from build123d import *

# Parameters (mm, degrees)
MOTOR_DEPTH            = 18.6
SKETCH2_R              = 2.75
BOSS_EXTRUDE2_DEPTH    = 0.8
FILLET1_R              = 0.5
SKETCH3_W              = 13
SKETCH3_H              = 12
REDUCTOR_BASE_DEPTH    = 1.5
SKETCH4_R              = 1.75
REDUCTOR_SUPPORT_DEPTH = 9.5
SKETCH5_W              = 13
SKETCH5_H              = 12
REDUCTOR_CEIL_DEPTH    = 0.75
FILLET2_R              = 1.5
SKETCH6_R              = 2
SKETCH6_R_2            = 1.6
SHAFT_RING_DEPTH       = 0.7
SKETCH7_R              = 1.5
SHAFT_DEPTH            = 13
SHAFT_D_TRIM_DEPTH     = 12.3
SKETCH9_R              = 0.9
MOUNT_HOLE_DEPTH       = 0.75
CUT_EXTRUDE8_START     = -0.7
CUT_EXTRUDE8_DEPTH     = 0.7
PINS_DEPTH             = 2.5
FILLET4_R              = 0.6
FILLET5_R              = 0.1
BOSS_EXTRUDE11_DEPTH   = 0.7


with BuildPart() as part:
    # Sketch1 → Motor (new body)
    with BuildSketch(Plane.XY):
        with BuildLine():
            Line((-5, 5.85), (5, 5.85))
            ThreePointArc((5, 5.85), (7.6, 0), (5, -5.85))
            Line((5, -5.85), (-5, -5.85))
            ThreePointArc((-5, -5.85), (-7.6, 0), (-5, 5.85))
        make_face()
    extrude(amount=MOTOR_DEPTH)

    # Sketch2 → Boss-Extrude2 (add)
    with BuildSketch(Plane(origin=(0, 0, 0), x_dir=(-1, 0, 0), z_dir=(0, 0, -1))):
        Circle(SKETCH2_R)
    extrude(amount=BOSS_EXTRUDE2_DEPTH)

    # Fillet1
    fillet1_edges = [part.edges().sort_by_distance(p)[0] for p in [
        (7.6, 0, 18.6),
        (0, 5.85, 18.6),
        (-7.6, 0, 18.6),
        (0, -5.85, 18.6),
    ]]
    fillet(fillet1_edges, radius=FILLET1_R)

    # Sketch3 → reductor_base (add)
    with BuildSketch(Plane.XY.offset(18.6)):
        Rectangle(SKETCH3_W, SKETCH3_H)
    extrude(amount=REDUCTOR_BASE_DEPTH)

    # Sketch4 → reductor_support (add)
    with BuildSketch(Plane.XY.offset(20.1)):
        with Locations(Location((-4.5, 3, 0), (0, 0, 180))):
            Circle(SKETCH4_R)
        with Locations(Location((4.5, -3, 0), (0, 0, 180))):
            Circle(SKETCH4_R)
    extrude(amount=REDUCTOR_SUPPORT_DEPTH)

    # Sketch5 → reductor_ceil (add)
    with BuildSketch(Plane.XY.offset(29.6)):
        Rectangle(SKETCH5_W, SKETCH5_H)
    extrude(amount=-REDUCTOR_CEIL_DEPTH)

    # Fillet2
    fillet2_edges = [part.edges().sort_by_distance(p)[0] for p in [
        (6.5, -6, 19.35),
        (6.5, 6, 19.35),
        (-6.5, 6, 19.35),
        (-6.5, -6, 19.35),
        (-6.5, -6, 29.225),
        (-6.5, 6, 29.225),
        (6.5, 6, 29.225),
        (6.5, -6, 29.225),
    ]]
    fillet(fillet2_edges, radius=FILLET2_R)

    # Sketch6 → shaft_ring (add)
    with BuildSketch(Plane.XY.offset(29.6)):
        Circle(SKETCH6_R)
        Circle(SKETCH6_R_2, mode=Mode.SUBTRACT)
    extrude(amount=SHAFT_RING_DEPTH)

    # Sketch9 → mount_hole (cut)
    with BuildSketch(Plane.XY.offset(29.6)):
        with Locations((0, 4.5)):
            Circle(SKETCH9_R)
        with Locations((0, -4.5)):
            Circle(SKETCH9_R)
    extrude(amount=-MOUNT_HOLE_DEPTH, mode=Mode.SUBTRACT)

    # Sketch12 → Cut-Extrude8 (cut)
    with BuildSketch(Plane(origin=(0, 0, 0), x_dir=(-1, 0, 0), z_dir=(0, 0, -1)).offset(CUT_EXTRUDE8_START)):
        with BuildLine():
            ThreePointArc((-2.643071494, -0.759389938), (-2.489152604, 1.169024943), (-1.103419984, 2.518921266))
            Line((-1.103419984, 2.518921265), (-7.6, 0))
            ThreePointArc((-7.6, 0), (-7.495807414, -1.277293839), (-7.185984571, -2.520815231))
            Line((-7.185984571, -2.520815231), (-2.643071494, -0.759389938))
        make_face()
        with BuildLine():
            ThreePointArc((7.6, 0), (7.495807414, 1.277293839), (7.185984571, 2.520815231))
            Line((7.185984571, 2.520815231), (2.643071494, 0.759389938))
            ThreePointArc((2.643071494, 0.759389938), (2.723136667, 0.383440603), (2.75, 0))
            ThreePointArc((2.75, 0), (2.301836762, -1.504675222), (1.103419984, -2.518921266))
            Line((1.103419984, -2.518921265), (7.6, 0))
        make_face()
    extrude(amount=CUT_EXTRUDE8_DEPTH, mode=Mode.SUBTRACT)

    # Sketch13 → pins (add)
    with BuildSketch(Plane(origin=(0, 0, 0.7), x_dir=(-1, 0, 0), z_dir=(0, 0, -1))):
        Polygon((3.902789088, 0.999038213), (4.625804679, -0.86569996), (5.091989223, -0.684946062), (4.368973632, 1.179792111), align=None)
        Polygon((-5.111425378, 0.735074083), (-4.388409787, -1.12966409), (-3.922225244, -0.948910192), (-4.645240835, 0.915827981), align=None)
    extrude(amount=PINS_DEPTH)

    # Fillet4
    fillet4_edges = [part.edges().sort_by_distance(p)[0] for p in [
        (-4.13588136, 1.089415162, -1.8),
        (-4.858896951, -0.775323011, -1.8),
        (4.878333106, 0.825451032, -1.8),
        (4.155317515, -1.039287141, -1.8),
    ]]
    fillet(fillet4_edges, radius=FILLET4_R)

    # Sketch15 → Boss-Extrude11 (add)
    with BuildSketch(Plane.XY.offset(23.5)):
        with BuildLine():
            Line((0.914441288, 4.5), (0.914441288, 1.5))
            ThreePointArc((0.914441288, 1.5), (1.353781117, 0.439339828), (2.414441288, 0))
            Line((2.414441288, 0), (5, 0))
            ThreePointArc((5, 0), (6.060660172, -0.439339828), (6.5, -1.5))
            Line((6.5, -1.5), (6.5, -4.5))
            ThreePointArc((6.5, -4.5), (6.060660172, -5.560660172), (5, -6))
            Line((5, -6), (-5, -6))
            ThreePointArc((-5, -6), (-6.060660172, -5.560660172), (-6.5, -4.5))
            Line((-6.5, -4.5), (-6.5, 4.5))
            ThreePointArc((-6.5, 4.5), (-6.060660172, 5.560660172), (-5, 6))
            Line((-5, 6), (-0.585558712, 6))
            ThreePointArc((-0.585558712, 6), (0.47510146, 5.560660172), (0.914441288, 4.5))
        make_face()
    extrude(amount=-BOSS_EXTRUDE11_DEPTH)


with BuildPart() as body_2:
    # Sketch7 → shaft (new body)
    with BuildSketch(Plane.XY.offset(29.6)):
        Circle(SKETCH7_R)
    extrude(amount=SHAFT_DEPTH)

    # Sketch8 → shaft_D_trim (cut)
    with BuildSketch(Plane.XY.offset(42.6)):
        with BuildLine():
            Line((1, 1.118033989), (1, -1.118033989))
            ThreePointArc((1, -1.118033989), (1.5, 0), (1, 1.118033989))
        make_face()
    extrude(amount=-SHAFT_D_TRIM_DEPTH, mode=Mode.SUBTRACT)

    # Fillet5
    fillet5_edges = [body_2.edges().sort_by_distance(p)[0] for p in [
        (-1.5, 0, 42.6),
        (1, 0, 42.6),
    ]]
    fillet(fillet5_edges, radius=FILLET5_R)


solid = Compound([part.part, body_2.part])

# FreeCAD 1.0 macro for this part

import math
import FreeCAD as App
import Part
import Sketcher
from FreeCAD import Vector
Q = App.Units.Quantity


def edges_at(feature, points):
    """Names of the edges that pass closest to the given points."""
    edges = feature.Shape.Edges
    near = lambda p: min(range(len(edges)), key=lambda i: edges[i].distToShape(Part.Vertex(*p))[0])
    return sorted({f"Edge{near(p) + 1}" for p in points})


def add_polygon(sketch, points):
    """Adds a closed chain of lines whose ends are joined by coincident constraints."""
    first, n = sketch.GeometryCount, len(points)
    for a, b in zip(points, points[1:] + points[:1]):
        sketch.addGeometry(Part.LineSegment(App.Vector(*a, 0), App.Vector(*b, 0)), False)
    for i in range(n):
        sketch.addConstraint(Sketcher.Constraint("Coincident", first + i, 2, first + (i + 1) % n, 1))

doc = App.newDocument("Part")
body = doc.addObject("PartDesign::Body", "Body")

# Sketch on XY plane
sketch1 = doc.addObject("Sketcher::SketchObject", "Sketch")
body.addObject(sketch1)
sketch1.AttachmentSupport = (doc.XY_Plane, [""])
sketch1.MapMode = "FlatFace"
sketch1.addGeometry(Part.LineSegment(Vector(5, 6, 0), Vector(-5, 6, 0)), False)
sketch1.addGeometry(Part.ArcOfCircle(Part.Circle(Vector(0, 0, 0), Vector(0, 0, 1), 8), math.radians(132), math.radians(228)), False)
sketch1.addGeometry(Part.LineSegment(Vector(-5, -6, 0), Vector(5, -6, 0)), False)
sketch1.addGeometry(Part.ArcOfCircle(Part.Circle(Vector(0, 0, 0), Vector(0, 0, 1), 8), math.radians(-48), math.radians(48)), False)
sketch1.addConstraint(Sketcher.Constraint("Coincident", 0, 2, 1, 1))
sketch1.addConstraint(Sketcher.Constraint("Coincident", 1, 2, 2, 1))
sketch1.addConstraint(Sketcher.Constraint("Coincident", 2, 2, 3, 1))
sketch1.addConstraint(Sketcher.Constraint("Coincident", 3, 2, 0, 1))
sketch1.addConstraint(Sketcher.Constraint("Horizontal", 0))
sketch1.addConstraint(Sketcher.Constraint("Horizontal", 2))
sketch1.addConstraint(Sketcher.Constraint("Equal", 1, 3))
sketch1.addConstraint(Sketcher.Constraint("Symmetric", 1, 3, 3, 3, -1, 1))
sketch1.addConstraint(Sketcher.Constraint("Symmetric", 0, 2, 1, 2, -1))
sketch1.addConstraint(Sketcher.Constraint("DistanceX", 0, 2, 0, 1, Q("10 mm")))
sketch1.addConstraint(Sketcher.Constraint("DistanceY", 1, 2, 0, 2, Q("11.7 mm")))
sketch1.addConstraint(Sketcher.Constraint("Radius", 1, Q("7.88125 mm")))
pad1 = doc.addObject("PartDesign::Pad", "Pad")
body.addObject(pad1)
pad1.Profile = sketch1
pad1.Length = 18.6

# Sketch on XY plane
sketch2 = doc.addObject("Sketcher::SketchObject", "Sketch001")
body.addObject(sketch2)
sketch2.AttachmentSupport = (doc.XY_Plane, [""])
sketch2.MapMode = "FlatFace"
sketch2.addGeometry(Part.Circle(Vector(0, 0, 0), Vector(0, 0, 1), 2.8), False)
sketch2.addConstraint(Sketcher.Constraint("Coincident", 0, 3, -1, 1))
sketch2.addConstraint(Sketcher.Constraint("Diameter", 0, Q("5.5 mm")))
pad2 = doc.addObject("PartDesign::Pad", "Pad001")
body.addObject(pad2)
pad2.Profile = sketch2
pad2.Length = 0.8
pad2.Reversed = True
doc.recompute()

fillet = doc.addObject("PartDesign::Fillet", "Fillet")
body.addObject(fillet)
fillet.Base = (pad2, edges_at(pad2, [
    (7.6, 0, 18.6),
    (0, 5.85, 18.6),
    (-7.6, 0, 18.6),
    (0, -5.85, 18.6),
]))
fillet.Radius = 0.5

# Sketch on XY plane
sketch3 = doc.addObject("Sketcher::SketchObject", "Sketch002")
body.addObject(sketch3)
sketch3.AttachmentSupport = (doc.XY_Plane, [""])
sketch3.MapMode = "FlatFace"
sketch3.AttachmentOffset = App.Placement(Vector(0, 0, 18.6), App.Rotation())
add_polygon(sketch3, [(-6, 6), (-6, -6), (6, -6), (6, 6)])  # lines 0-3
sketch3.addConstraint(Sketcher.Constraint("Vertical", 0))
sketch3.addConstraint(Sketcher.Constraint("Horizontal", 1))
sketch3.addConstraint(Sketcher.Constraint("Vertical", 2))
sketch3.addConstraint(Sketcher.Constraint("Horizontal", 3))
sketch3.addConstraint(Sketcher.Constraint("Symmetric", 0, 2, 2, 2, -1, 1))
sketch3.addConstraint(Sketcher.Constraint("DistanceX", 1, 1, 1, 2, Q("13 mm")))
sketch3.addConstraint(Sketcher.Constraint("DistanceY", 0, 2, 0, 1, Q("12 mm")))
pad3 = doc.addObject("PartDesign::Pad", "Pad002")
body.addObject(pad3)
pad3.Profile = sketch3
pad3.Length = 1.5

# Sketch on XY plane
sketch4 = doc.addObject("Sketcher::SketchObject", "Sketch003")
body.addObject(sketch4)
sketch4.AttachmentSupport = (doc.XY_Plane, [""])
sketch4.MapMode = "FlatFace"
sketch4.AttachmentOffset = App.Placement(Vector(0, 0, 20.1), App.Rotation())
sketch4.addGeometry(Part.Circle(Vector(-4.5, 3, 0), Vector(0, 0, 1), 1.8), False)
sketch4.addGeometry(Part.Circle(Vector(4.5, -3, 0), Vector(0, 0, 1), 1.8), False)
sketch4.addConstraint(Sketcher.Constraint("Equal", 0, 1))
sketch4.addConstraint(Sketcher.Constraint("Symmetric", 0, 3, 1, 3, -1, 1))
sketch4.addConstraint(Sketcher.Constraint("Diameter", 0, Q("3.5 mm")))
sketch4.addConstraint(Sketcher.Constraint("DistanceY", -1, 1, 0, 3, Q("3 mm")))
sketch4.addConstraint(Sketcher.Constraint("DistanceX", 0, 3, 1, 3, Q("9 mm")))
pad4 = doc.addObject("PartDesign::Pad", "Pad003")
body.addObject(pad4)
pad4.Profile = sketch4
pad4.Length = 9.5

# Sketch on XY plane
sketch5 = doc.addObject("Sketcher::SketchObject", "Sketch004")
body.addObject(sketch5)
sketch5.AttachmentSupport = (doc.XY_Plane, [""])
sketch5.MapMode = "FlatFace"
sketch5.AttachmentOffset = App.Placement(Vector(0, 0, 29.6), App.Rotation())
add_polygon(sketch5, [(-6, 6), (-6, -6), (6, -6), (6, 6)])  # lines 0-3
sketch5.addConstraint(Sketcher.Constraint("Vertical", 0))
sketch5.addConstraint(Sketcher.Constraint("Horizontal", 1))
sketch5.addConstraint(Sketcher.Constraint("Vertical", 2))
sketch5.addConstraint(Sketcher.Constraint("Horizontal", 3))
sketch5.addConstraint(Sketcher.Constraint("Symmetric", 0, 2, 2, 2, -1, 1))
sketch5.addConstraint(Sketcher.Constraint("DistanceX", 1, 1, 1, 2, Q("13 mm")))
sketch5.addConstraint(Sketcher.Constraint("DistanceY", 0, 2, 0, 1, Q("12 mm")))
pad5 = doc.addObject("PartDesign::Pad", "Pad004")
body.addObject(pad5)
pad5.Profile = sketch5
pad5.Length = 0.75
pad5.Reversed = True
doc.recompute()

fillet2 = doc.addObject("PartDesign::Fillet", "Fillet001")
body.addObject(fillet2)
fillet2.Base = (pad5, edges_at(pad5, [
    (6.5, -6, 19.35),
    (6.5, 6, 19.35),
    (-6.5, 6, 19.35),
    (-6.5, -6, 19.35),
    (-6.5, -6, 29.225),
    (-6.5, 6, 29.225),
    (6.5, 6, 29.225),
    (6.5, -6, 29.225),
]))
fillet2.Radius = 1.5

# Sketch on XY plane
sketch6 = doc.addObject("Sketcher::SketchObject", "Sketch005")
body.addObject(sketch6)
sketch6.AttachmentSupport = (doc.XY_Plane, [""])
sketch6.MapMode = "FlatFace"
sketch6.AttachmentOffset = App.Placement(Vector(0, 0, 29.6), App.Rotation())
sketch6.addGeometry(Part.Circle(Vector(0, 0, 0), Vector(0, 0, 1), 2), False)
sketch6.addGeometry(Part.Circle(Vector(0, 0, 0), Vector(0, 0, 1), 1.6), False)
sketch6.addConstraint(Sketcher.Constraint("Coincident", 0, 3, -1, 1))
sketch6.addConstraint(Sketcher.Constraint("Coincident", 1, 3, -1, 1))
sketch6.addConstraint(Sketcher.Constraint("Diameter", 0, Q("4 mm")))
sketch6.addConstraint(Sketcher.Constraint("Diameter", 1, Q("3.2 mm")))
pad6 = doc.addObject("PartDesign::Pad", "Pad005")
body.addObject(pad6)
pad6.Profile = sketch6
pad6.Length = 0.7

# Sketch on XY plane
sketch7 = doc.addObject("Sketcher::SketchObject", "Sketch006")
body.addObject(sketch7)
sketch7.AttachmentSupport = (doc.XY_Plane, [""])
sketch7.MapMode = "FlatFace"
sketch7.AttachmentOffset = App.Placement(Vector(0, 0, 29.6), App.Rotation())
sketch7.addGeometry(Part.Circle(Vector(0, 4.5, 0), Vector(0, 0, 1), 0.9), False)
sketch7.addGeometry(Part.Circle(Vector(0, -4.5, 0), Vector(0, 0, 1), 0.9), False)
sketch7.addConstraint(Sketcher.Constraint("Equal", 0, 1))
sketch7.addConstraint(Sketcher.Constraint("Symmetric", 0, 3, 1, 3, -1, 1))
sketch7.addConstraint(Sketcher.Constraint("PointOnObject", 0, 3, -2))
sketch7.addConstraint(Sketcher.Constraint("Diameter", 0, Q("1.8 mm")))
sketch7.addConstraint(Sketcher.Constraint("DistanceY", 1, 3, 0, 3, Q("9 mm")))
pocket1 = doc.addObject("PartDesign::Pocket", "Pocket")
body.addObject(pocket1)
pocket1.Profile = sketch7
pocket1.Length = 0.75

# Sketch on XY plane
sketch8 = doc.addObject("Sketcher::SketchObject", "Sketch007")
body.addObject(sketch8)
sketch8.AttachmentSupport = (doc.XY_Plane, [""])
sketch8.MapMode = "FlatFace"
sketch8.AttachmentOffset = App.Placement(Vector(0, 0, 0.7), App.Rotation())
sketch8.addGeometry(Part.ArcOfCircle(Part.Circle(Vector(0, 0, 0), Vector(0, 0, 1), 2.8), math.radians(-16), math.radians(66)), False)
sketch8.addGeometry(Part.LineSegment(Vector(1.1, 2.5, 0), Vector(7.6, 0, 0)), False)
sketch8.addGeometry(Part.ArcOfCircle(Part.Circle(Vector(-0.3, 0, 0), Vector(0, 0, 1), 7.9), math.radians(-18.65), math.radians(0)), False)
sketch8.addGeometry(Part.LineSegment(Vector(7.2, -2.5, 0), Vector(2.6, -0.8, 0)), False)
sketch8.addGeometry(Part.ArcOfCircle(Part.Circle(Vector(0.3, 0, 0), Vector(0, 0, 1), 7.9), math.radians(161.35), math.radians(180)), False)
sketch8.addGeometry(Part.LineSegment(Vector(-7.2, 2.5, 0), Vector(-2.6, 0.8, 0)), False)
sketch8.addGeometry(Part.ArcOfCircle(Part.Circle(Vector(0, 0, 0), Vector(0, 0, 1), 2.7), math.radians(163.97), math.radians(180)), False)
sketch8.addGeometry(Part.ArcOfCircle(Part.Circle(Vector(0, 0, 0), Vector(0, 0, 1), 2.8), math.radians(180), math.radians(246)), False)
sketch8.addGeometry(Part.LineSegment(Vector(-1.1, -2.5, 0), Vector(-7.6, 0, 0)), False)
sketch8.addConstraint(Sketcher.Constraint("Coincident", 0, 2, 1, 1))
sketch8.addConstraint(Sketcher.Constraint("Coincident", 1, 2, 2, 2))
sketch8.addConstraint(Sketcher.Constraint("Coincident", 2, 1, 3, 1))
sketch8.addConstraint(Sketcher.Constraint("Coincident", 3, 2, 0, 1))
sketch8.addConstraint(Sketcher.Constraint("Coincident", 4, 1, 5, 1))
sketch8.addConstraint(Sketcher.Constraint("Coincident", 5, 2, 6, 1))
sketch8.addConstraint(Sketcher.Constraint("Tangent", 6, 2, 7, 1))
sketch8.addConstraint(Sketcher.Constraint("Coincident", 7, 2, 8, 1))
sketch8.addConstraint(Sketcher.Constraint("Coincident", 8, 2, 4, 2))
sketch8.addConstraint(Sketcher.Constraint("Coincident", 0, 3, -1, 1))
sketch8.addConstraint(Sketcher.Constraint("Coincident", 6, 3, -1, 1))
sketch8.addConstraint(Sketcher.Constraint("Equal", 2, 4))
sketch8.addConstraint(Sketcher.Constraint("Equal", 0, 6))
sketch8.addConstraint(Sketcher.Constraint("Equal", 6, 7))
sketch8.addConstraint(Sketcher.Constraint("Symmetric", 2, 3, 4, 3, -1, 1))
sketch8.addConstraint(Sketcher.Constraint("PointOnObject", 2, 3, -1))
sketch8.addConstraint(Sketcher.Constraint("PointOnObject", 1, 2, -1))
sketch8.addConstraint(Sketcher.Constraint("PointOnObject", 6, 2, -1))
sketch8.addConstraint(Sketcher.Constraint("PointOnObject", 8, 2, -1))
sketch8.addConstraint(Sketcher.Constraint("Parallel", 1, 3))
sketch8.addConstraint(Sketcher.Constraint("Parallel", 3, 5))
sketch8.addConstraint(Sketcher.Constraint("Parallel", 5, 8))
sketch8.addConstraint(Sketcher.Constraint("Equal", 3, 5))
sketch8.addConstraint(Sketcher.Constraint("Radius", 0, Q("2.75 mm")))
sketch8.addConstraint(Sketcher.Constraint("DistanceX", -1, 1, 1, 2, Q("7.6 mm")))
sketch8.addConstraint(Sketcher.Constraint("Radius", 2, Q("7.88125 mm")))
sketch8.addConstraint(Sketcher.Constraint("Distance", 1, Q("6.96782 mm")))
sketch8.addConstraint(Sketcher.Constraint("Distance", 3, Q("4.872441 mm")))
pocket2 = doc.addObject("PartDesign::Pocket", "Pocket001")
body.addObject(pocket2)
pocket2.Profile = sketch8
pocket2.Length = 0.7

# Sketch on XY plane
sketch9 = doc.addObject("Sketcher::SketchObject", "Sketch008")
body.addObject(sketch9)
sketch9.AttachmentSupport = (doc.XY_Plane, [""])
sketch9.MapMode = "FlatFace"
sketch9.AttachmentOffset = App.Placement(Vector(0, 0, 0.7), App.Rotation())
add_polygon(sketch9, [(-3.9, 1), (-4.63, -0.87), (-5.09, -0.68), (-4.37, 1.18)])  # lines 0-3
add_polygon(sketch9, [(5.11, 0.74), (4.39, -1.13), (3.92, -0.95), (4.65, 0.92)])  # lines 4-7
sketch9.addConstraint(Sketcher.Constraint("Perpendicular", 0, 1))
sketch9.addConstraint(Sketcher.Constraint("Perpendicular", 1, 2))
sketch9.addConstraint(Sketcher.Constraint("Perpendicular", 2, 3))
sketch9.addConstraint(Sketcher.Constraint("Perpendicular", 3, 4))
sketch9.addConstraint(Sketcher.Constraint("Perpendicular", 4, 5))
sketch9.addConstraint(Sketcher.Constraint("Perpendicular", 5, 6))
sketch9.addConstraint(Sketcher.Constraint("Perpendicular", 6, 7))
sketch9.addConstraint(Sketcher.Constraint("Equal", 2, 4))
sketch9.addConstraint(Sketcher.Constraint("Equal", 3, 5))
sketch9.addConstraint(Sketcher.Constraint("Distance", 0, Q("2 mm")))
sketch9.addConstraint(Sketcher.Constraint("Distance", 1, Q("0.5 mm")))
sketch9.addConstraint(Sketcher.Constraint("DistanceY", 0, 2, -1, 1, Q("0.8657 mm")))
sketch9.addConstraint(Sketcher.Constraint("DistanceX", 1, 2, 3, 2, Q("1.1892 mm")))
sketch9.addConstraint(Sketcher.Constraint("DistanceX", 3, 2, 4, 2, Q("8.291199 mm")))
sketch9.addConstraint(Sketcher.Constraint("DistanceX", 1, 2, -1, 1, Q("5.091989 mm")))
sketch9.addConstraint(Sketcher.Constraint("DistanceY", 5, 2, -1, 1, Q("0.94891 mm")))
pad7 = doc.addObject("PartDesign::Pad", "Pad006")
body.addObject(pad7)
pad7.Profile = sketch9
pad7.Length = 2.5
pad7.Reversed = True
doc.recompute()

fillet3 = doc.addObject("PartDesign::Fillet", "Fillet002")
body.addObject(fillet3)
fillet3.Base = (pad7, edges_at(pad7, [
    (-4.136, 1.089, -1.8),
    (-4.859, -0.775, -1.8),
    (4.878, 0.825, -1.8),
    (4.155, -1.039, -1.8),
]))
fillet3.Radius = 0.6

# Sketch on XY plane
sketch10 = doc.addObject("Sketcher::SketchObject", "Sketch009")
body.addObject(sketch10)
sketch10.AttachmentSupport = (doc.XY_Plane, [""])
sketch10.MapMode = "FlatFace"
sketch10.AttachmentOffset = App.Placement(Vector(0, 0, 23.5), App.Rotation())
sketch10.addGeometry(Part.LineSegment(Vector(0.9, 1.5, 0), Vector(0.9, 4.5, 0)), False)
sketch10.addGeometry(Part.ArcOfCircle(Part.Circle(Vector(-0.6, 4.5, 0), Vector(0, 0, 1), 1.5), math.radians(0), math.radians(90)), False)
sketch10.addGeometry(Part.LineSegment(Vector(-0.6, 6, 0), Vector(-5, 6, 0)), False)
sketch10.addGeometry(Part.ArcOfCircle(Part.Circle(Vector(-5, 4.5, 0), Vector(0, 0, 1), 1.5), math.radians(90), math.radians(180)), False)
sketch10.addGeometry(Part.LineSegment(Vector(-6.5, 4.5, 0), Vector(-6.5, -4.5, 0)), False)
sketch10.addGeometry(Part.ArcOfCircle(Part.Circle(Vector(-5, -4.5, 0), Vector(0, 0, 1), 1.5), math.radians(180), math.radians(270)), False)
sketch10.addGeometry(Part.LineSegment(Vector(-5, -6, 0), Vector(5, -6, 0)), False)
sketch10.addGeometry(Part.ArcOfCircle(Part.Circle(Vector(5, -4.5, 0), Vector(0, 0, 1), 1.5), math.radians(-90), math.radians(0)), False)
sketch10.addGeometry(Part.LineSegment(Vector(6.5, -4.5, 0), Vector(6.5, -1.5, 0)), False)
sketch10.addGeometry(Part.ArcOfCircle(Part.Circle(Vector(5, -1.5, 0), Vector(0, 0, 1), 1.5), math.radians(0), math.radians(90)), False)
sketch10.addGeometry(Part.LineSegment(Vector(5, 0, 0), Vector(2.4, 0, 0)), False)
sketch10.addGeometry(Part.ArcOfCircle(Part.Circle(Vector(2.4, 1.5, 0), Vector(0, 0, 1), 1.5), math.radians(-180), math.radians(-90)), False)
sketch10.addConstraint(Sketcher.Constraint("Tangent", 0, 2, 1, 1))
sketch10.addConstraint(Sketcher.Constraint("Tangent", 1, 2, 2, 1))
sketch10.addConstraint(Sketcher.Constraint("Tangent", 2, 2, 3, 1))
sketch10.addConstraint(Sketcher.Constraint("Tangent", 3, 2, 4, 1))
sketch10.addConstraint(Sketcher.Constraint("Tangent", 4, 2, 5, 1))
sketch10.addConstraint(Sketcher.Constraint("Tangent", 5, 2, 6, 1))
sketch10.addConstraint(Sketcher.Constraint("Tangent", 6, 2, 7, 1))
sketch10.addConstraint(Sketcher.Constraint("Tangent", 7, 2, 8, 1))
sketch10.addConstraint(Sketcher.Constraint("Tangent", 8, 2, 9, 1))
sketch10.addConstraint(Sketcher.Constraint("Tangent", 9, 2, 10, 1))
sketch10.addConstraint(Sketcher.Constraint("Tangent", 10, 2, 11, 2))
sketch10.addConstraint(Sketcher.Constraint("Tangent", 11, 1, 0, 1))
sketch10.addConstraint(Sketcher.Constraint("Vertical", 0))
sketch10.addConstraint(Sketcher.Constraint("Horizontal", 2))
sketch10.addConstraint(Sketcher.Constraint("Vertical", 4))
sketch10.addConstraint(Sketcher.Constraint("Horizontal", 6))
sketch10.addConstraint(Sketcher.Constraint("Vertical", 8))
sketch10.addConstraint(Sketcher.Constraint("Horizontal", 10))
sketch10.addConstraint(Sketcher.Constraint("Equal", 1, 3))
sketch10.addConstraint(Sketcher.Constraint("Equal", 3, 5))
sketch10.addConstraint(Sketcher.Constraint("Equal", 5, 7))
sketch10.addConstraint(Sketcher.Constraint("Equal", 7, 9))
sketch10.addConstraint(Sketcher.Constraint("Equal", 9, 11))
sketch10.addConstraint(Sketcher.Constraint("Symmetric", 3, 3, 7, 3, -1, 1))
sketch10.addConstraint(Sketcher.Constraint("PointOnObject", 9, 2, -1))
sketch10.addConstraint(Sketcher.Constraint("Radius", 1, Q("1.5 mm")))
sketch10.addConstraint(Sketcher.Constraint("DistanceX", 6, 1, 6, 2, Q("10 mm")))
sketch10.addConstraint(Sketcher.Constraint("DistanceY", 0, 1, 0, 2, Q("3 mm")))
sketch10.addConstraint(Sketcher.Constraint("DistanceX", 2, 2, 2, 1, Q("4.414441 mm")))
pad8 = doc.addObject("PartDesign::Pad", "Pad007")
body.addObject(pad8)
pad8.Profile = sketch10
pad8.Length = 0.7
pad8.Reversed = True
body2 = doc.addObject("PartDesign::Body", "Body001")

# Sketch on XY plane
sketch11 = doc.addObject("Sketcher::SketchObject", "Sketch010")
body2.addObject(sketch11)
sketch11.AttachmentSupport = (doc.getObject("XY_Plane001"), [""])
sketch11.MapMode = "FlatFace"
sketch11.AttachmentOffset = App.Placement(Vector(0, 0, 29.6), App.Rotation())
sketch11.addGeometry(Part.Circle(Vector(0, 0, 0), Vector(0, 0, 1), 1.5), False)
sketch11.addConstraint(Sketcher.Constraint("Coincident", 0, 3, -1, 1))
sketch11.addConstraint(Sketcher.Constraint("Diameter", 0, Q("3 mm")))
pad9 = doc.addObject("PartDesign::Pad", "Pad008")
body2.addObject(pad9)
pad9.Profile = sketch11
pad9.Length = 13

# Sketch on XY plane
sketch12 = doc.addObject("Sketcher::SketchObject", "Sketch011")
body2.addObject(sketch12)
sketch12.AttachmentSupport = (doc.getObject("XY_Plane001"), [""])
sketch12.MapMode = "FlatFace"
sketch12.AttachmentOffset = App.Placement(Vector(0, 0, 42.6), App.Rotation())
sketch12.addGeometry(Part.LineSegment(Vector(1, 1.1, 0), Vector(1, -1.1, 0)), False)
sketch12.addGeometry(Part.ArcOfCircle(Part.Circle(Vector(0, 0, 0), Vector(0, 0, 1), 1.5), math.radians(-48), math.radians(48)), False)
sketch12.addConstraint(Sketcher.Constraint("Coincident", 0, 1, 1, 2))
sketch12.addConstraint(Sketcher.Constraint("Coincident", 1, 1, 0, 2))
sketch12.addConstraint(Sketcher.Constraint("Vertical", 0))
sketch12.addConstraint(Sketcher.Constraint("Coincident", 1, 3, -1, 1))
sketch12.addConstraint(Sketcher.Constraint("Radius", 1, Q("1.5 mm")))
sketch12.addConstraint(Sketcher.Constraint("DistanceX", -1, 1, 0, 1, Q("1 mm")))
pocket3 = doc.addObject("PartDesign::Pocket", "Pocket002")
body2.addObject(pocket3)
pocket3.Profile = sketch12
pocket3.Length = 12.3
doc.recompute()

fillet4 = doc.addObject("PartDesign::Fillet", "Fillet003")
body2.addObject(fillet4)
fillet4.Base = (pocket3, edges_at(pocket3, [(-1.5, 0, 42.6), (1, 0, 42.6)]))
fillet4.Radius = 0.1

doc.recompute()
